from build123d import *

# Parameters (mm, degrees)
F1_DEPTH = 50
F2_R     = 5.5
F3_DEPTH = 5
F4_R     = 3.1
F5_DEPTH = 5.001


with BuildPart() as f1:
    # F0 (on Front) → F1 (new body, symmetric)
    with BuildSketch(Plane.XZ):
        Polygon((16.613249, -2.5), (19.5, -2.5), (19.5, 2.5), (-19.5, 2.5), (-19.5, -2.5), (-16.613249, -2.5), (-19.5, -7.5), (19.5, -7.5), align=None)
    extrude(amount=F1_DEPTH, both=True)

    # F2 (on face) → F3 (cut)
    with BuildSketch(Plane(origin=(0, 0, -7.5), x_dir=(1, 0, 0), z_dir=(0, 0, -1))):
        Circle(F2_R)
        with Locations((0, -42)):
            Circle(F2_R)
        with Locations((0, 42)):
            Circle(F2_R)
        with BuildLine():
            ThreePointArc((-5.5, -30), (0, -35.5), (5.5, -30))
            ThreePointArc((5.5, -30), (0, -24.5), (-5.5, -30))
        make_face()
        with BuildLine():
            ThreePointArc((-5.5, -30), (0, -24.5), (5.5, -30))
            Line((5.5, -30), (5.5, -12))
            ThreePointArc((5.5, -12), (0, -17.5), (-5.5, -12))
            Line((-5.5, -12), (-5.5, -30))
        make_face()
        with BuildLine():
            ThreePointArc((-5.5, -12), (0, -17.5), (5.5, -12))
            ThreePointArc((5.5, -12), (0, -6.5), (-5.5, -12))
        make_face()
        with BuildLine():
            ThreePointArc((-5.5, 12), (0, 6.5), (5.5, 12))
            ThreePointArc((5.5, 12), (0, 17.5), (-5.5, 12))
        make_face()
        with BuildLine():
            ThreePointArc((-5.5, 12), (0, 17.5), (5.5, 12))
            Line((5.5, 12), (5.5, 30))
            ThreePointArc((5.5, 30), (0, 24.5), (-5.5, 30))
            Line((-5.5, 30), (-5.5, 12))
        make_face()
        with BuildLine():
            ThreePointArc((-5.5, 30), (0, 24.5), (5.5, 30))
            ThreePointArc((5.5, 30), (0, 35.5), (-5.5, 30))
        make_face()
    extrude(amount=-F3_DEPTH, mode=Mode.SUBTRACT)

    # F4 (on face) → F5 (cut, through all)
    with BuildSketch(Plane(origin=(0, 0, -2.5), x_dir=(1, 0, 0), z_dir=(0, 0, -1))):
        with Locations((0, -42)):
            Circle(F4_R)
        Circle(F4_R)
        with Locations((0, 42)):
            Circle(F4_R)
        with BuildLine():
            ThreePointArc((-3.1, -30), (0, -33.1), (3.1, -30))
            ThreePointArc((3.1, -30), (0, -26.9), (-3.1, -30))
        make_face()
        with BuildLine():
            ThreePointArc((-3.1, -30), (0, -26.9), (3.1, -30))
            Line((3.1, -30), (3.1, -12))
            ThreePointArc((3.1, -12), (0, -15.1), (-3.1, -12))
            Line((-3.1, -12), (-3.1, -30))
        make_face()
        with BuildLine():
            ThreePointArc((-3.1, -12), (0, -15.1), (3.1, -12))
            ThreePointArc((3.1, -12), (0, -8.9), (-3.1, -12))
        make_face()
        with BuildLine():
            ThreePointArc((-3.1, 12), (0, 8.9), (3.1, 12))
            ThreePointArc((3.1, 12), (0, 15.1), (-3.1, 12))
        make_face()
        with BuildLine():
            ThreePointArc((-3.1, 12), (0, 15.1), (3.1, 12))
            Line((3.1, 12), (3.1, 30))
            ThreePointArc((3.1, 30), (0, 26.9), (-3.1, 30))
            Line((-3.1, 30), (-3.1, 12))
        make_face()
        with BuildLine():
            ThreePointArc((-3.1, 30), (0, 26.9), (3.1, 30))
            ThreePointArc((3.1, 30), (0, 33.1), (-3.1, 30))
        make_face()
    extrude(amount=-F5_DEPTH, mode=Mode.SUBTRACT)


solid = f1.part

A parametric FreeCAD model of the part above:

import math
import FreeCAD as App
import Part
import Sketcher
Q = App.Units.Quantity

doc = App.newDocument("Part")
params = doc.addObject("Spreadsheet::Sheet", "Params")
for row, (alias, value) in enumerate([
    ("sketch1_width", "39 mm"),
    ("sketch1_height", "5 mm"),
    ("pad1_length", "100 mm"),
    ("sketch2_diameter", "11 mm"),
    ("sketch2_height", "18 mm"),
    ("pocket1_length", "5 mm"),
    ("sketch3_diameter", "6.2 mm"),
    ("sketch3_height", "18 mm"),
], start=1):
    params.set(f"A{row}", alias)
    params.set(f"B{row}", "=" + value)
    params.setAlias(f"B{row}", alias)

body = doc.addObject("PartDesign::Body", "Body")

# Sketch on XZ plane
sketch1 = body.newObject("Sketcher::SketchObject", "Sketch")
sketch1.AttachmentSupport = (doc.getObject("XZ_Plane"), [""])
sketch1.MapMode = "FlatFace"
sketch1.addGeometry(Part.LineSegment(App.Vector(16.613249, -2.5, 0), App.Vector(19.5, -2.5, 0)), False)
sketch1.addGeometry(Part.LineSegment(App.Vector(19.5, -2.5, 0), App.Vector(19.5, 2.5, 0)), False)
sketch1.addGeometry(Part.LineSegment(App.Vector(19.5, 2.5, 0), App.Vector(-19.5, 2.5, 0)), False)
sketch1.addGeometry(Part.LineSegment(App.Vector(-19.5, 2.5, 0), App.Vector(-19.5, -2.5, 0)), False)
sketch1.addGeometry(Part.LineSegment(App.Vector(-19.5, -2.5, 0), App.Vector(-16.613249, -2.5, 0)), False)
sketch1.addGeometry(Part.LineSegment(App.Vector(-16.613249, -2.5, 0), App.Vector(-19.5, -7.5, 0)), False)
sketch1.addGeometry(Part.LineSegment(App.Vector(-19.5, -7.5, 0), App.Vector(19.5, -7.5, 0)), False)
sketch1.addGeometry(Part.LineSegment(App.Vector(19.5, -7.5, 0), App.Vector(16.613249, -2.5, 0)), False)
sketch1.addConstraint(Sketcher.Constraint("Coincident", 0, 2, 1, 1))
sketch1.addConstraint(Sketcher.Constraint("Coincident", 1, 2, 2, 1))
sketch1.addConstraint(Sketcher.Constraint("Coincident", 2, 2, 3, 1))
sketch1.addConstraint(Sketcher.Constraint("Coincident", 3, 2, 4, 1))
sketch1.addConstraint(Sketcher.Constraint("Coincident", 4, 2, 5, 1))
sketch1.addConstraint(Sketcher.Constraint("Coincident", 5, 2, 6, 1))
sketch1.addConstraint(Sketcher.Constraint("Coincident", 6, 2, 7, 1))
sketch1.addConstraint(Sketcher.Constraint("Coincident", 7, 2, 0, 1))
sketch1.addConstraint(Sketcher.Constraint("Horizontal", 0))
sketch1.addConstraint(Sketcher.Constraint("Vertical", 1))
sketch1.addConstraint(Sketcher.Constraint("Horizontal", 2))
sketch1.addConstraint(Sketcher.Constraint("Vertical", 3))
sketch1.addConstraint(Sketcher.Constraint("Horizontal", 4))
sketch1.addConstraint(Sketcher.Constraint("Horizontal", 6))
sketch1.addConstraint(Sketcher.Constraint("Symmetric", 0, 2, 2, 2, -1, 1))
sketch1.addConstraint(Sketcher.Constraint("Symmetric", 4, 2, 7, 2, -2))
sketch1.addConstraint(Sketcher.Constraint("Vertical", 3, 2, 5, 2))
sketch1.addConstraint(Sketcher.Constraint("Vertical", 1, 2, 6, 2))
sketch1.addConstraint(Sketcher.Constraint("DistanceX", 2, 2, 2, 1, 39.0))
sketch1.addConstraint(Sketcher.Constraint("DistanceY", 1, 1, 1, 2, 5.0))
sketch1.addConstraint(Sketcher.Constraint("Angle", 5, Q("-119.999997 deg")))
sketch1.addConstraint(Sketcher.Constraint("DistanceY", 5, 2, 3, 2, 5.0))
sketch1.setExpression("Constraints[18]", "Params.sketch1_width")
sketch1.setExpression("Constraints[19]", "Params.sketch1_height")
pad1 = body.newObject("PartDesign::Pad", "Pad")
pad1.Profile = sketch1
pad1.setExpression("Length", "Params.pad1_length")
pad1.Midplane = True

# Sketch on XY plane
sketch2 = body.newObject("Sketcher::SketchObject", "Sketch001")
sketch2.AttachmentSupport = (doc.getObject("XY_Plane"), [""])
sketch2.MapMode = "FlatFace"
sketch2.AttachmentOffset = App.Placement(App.Vector(0, 0, -7.5), App.Rotation())
sketch2.addGeometry(Part.Circle(App.Vector(0, 0, 0), App.Vector(0, 0, 1), 5.5), False)
sketch2.addGeometry(Part.Circle(App.Vector(0, 42, 0), App.Vector(0, 0, 1), 5.5), False)
sketch2.addGeometry(Part.Circle(App.Vector(0, -42, 0), App.Vector(0, 0, 1), 5.5), False)
sketch2.addGeometry(Part.ArcOfCircle(Part.Circle(App.Vector(0, 30, 0), App.Vector(0, 0, 1), 5.5), math.radians(0), math.radians(180)), False)
sketch2.addGeometry(Part.LineSegment(App.Vector(5.5, 30, 0), App.Vector(5.5, 12, 0)), False)
sketch2.addGeometry(Part.ArcOfCircle(Part.Circle(App.Vector(0, 12, 0), App.Vector(0, 0, 1), 5.5), math.radians(180), math.radians(360)), False)
sketch2.addGeometry(Part.LineSegment(App.Vector(-5.5, 12, 0), App.Vector(-5.5, 30, 0)), False)
sketch2.addGeometry(Part.ArcOfCircle(Part.Circle(App.Vector(0, -12, 0), App.Vector(0, 0, 1), 5.5), math.radians(0), math.radians(180)), False)
sketch2.addGeometry(Part.LineSegment(App.Vector(5.5, -12, 0), App.Vector(5.5, -30, 0)), False)
sketch2.addGeometry(Part.ArcOfCircle(Part.Circle(App.Vector(0, -30, 0), App.Vector(0, 0, 1), 5.5), math.radians(180), math.radians(360)), False)
sketch2.addGeometry(Part.LineSegment(App.Vector(-5.5, -30, 0), App.Vector(-5.5, -12, 0)), False)
sketch2.addConstraint(Sketcher.Constraint("Tangent", 3, 1, 4, 1))
sketch2.addConstraint(Sketcher.Constraint("Tangent", 4, 2, 5, 2))
sketch2.addConstraint(Sketcher.Constraint("Tangent", 5, 1, 6, 1))
sketch2.addConstraint(Sketcher.Constraint("Tangent", 6, 2, 3, 2))
sketch2.addConstraint(Sketcher.Constraint("Tangent", 7, 1, 8, 1))
sketch2.addConstraint(Sketcher.Constraint("Tangent", 8, 2, 9, 2))
sketch2.addConstraint(Sketcher.Constraint("Tangent", 9, 1, 10, 1))
sketch2.addConstraint(Sketcher.Constraint("Tangent", 10, 2, 7, 2))
sketch2.addConstraint(Sketcher.Constraint("Vertical", 4))
sketch2.addConstraint(Sketcher.Constraint("Vertical", 6))
sketch2.addConstraint(Sketcher.Constraint("Vertical", 8))
sketch2.addConstraint(Sketcher.Constraint("Vertical", 10))
sketch2.addConstraint(Sketcher.Constraint("Coincident", 0, 3, -1, 1))
sketch2.addConstraint(Sketcher.Constraint("Equal", 0, 1))
sketch2.addConstraint(Sketcher.Constraint("Equal", 1, 2))
sketch2.addConstraint(Sketcher.Constraint("Equal", 2, 3))
sketch2.addConstraint(Sketcher.Constraint("Equal", 5, 7))
sketch2.addConstraint(Sketcher.Constraint("Symmetric", 1, 3, 2, 3, -1, 1))
sketch2.addConstraint(Sketcher.Constraint("Symmetric", 5, 3, 7, 3, -1, 1))
sketch2.addConstraint(Sketcher.Constraint("Symmetric", 3, 3, 9, 3, -1))
sketch2.addConstraint(Sketcher.Constraint("PointOnObject", 1, 3, -2))
sketch2.addConstraint(Sketcher.Constraint("Diameter", 0, 11.0))
sketch2.addConstraint(Sketcher.Constraint("DistanceY", 4, 2, 4, 1, 18.0))
sketch2.addConstraint(Sketcher.Constraint("DistanceY", -1, 1, 1, 3, 42.0))
sketch2.addConstraint(Sketcher.Constraint("DistanceY", -1, 1, 3, 3, 30.0))
sketch2.setExpression("Constraints[21]", "Params.sketch2_diameter")
sketch2.setExpression("Constraints[22]", "Params.sketch2_height")
pocket1 = body.newObject("PartDesign::Pocket", "Pocket")
pocket1.Profile = sketch2
pocket1.setExpression("Length", "Params.pocket1_length")
pocket1.Reversed = True

# Sketch on XY plane
sketch3 = body.newObject("Sketcher::SketchObject", "Sketch002")
sketch3.AttachmentSupport = (doc.getObject("XY_Plane"), [""])
sketch3.MapMode = "FlatFace"
sketch3.AttachmentOffset = App.Placement(App.Vector(0, 0, -2.5), App.Rotation())
sketch3.addGeometry(Part.Circle(App.Vector(0, 42, 0), App.Vector(0, 0, 1), 3.1), False)
sketch3.addGeometry(Part.Circle(App.Vector(0, 0, 0), App.Vector(0, 0, 1), 3.1), False)
sketch3.addGeometry(Part.Circle(App.Vector(0, -42, 0), App.Vector(0, 0, 1), 3.1), False)
sketch3.addGeometry(Part.ArcOfCircle(Part.Circle(App.Vector(0, 30, 0), App.Vector(0, 0, 1), 3.1), math.radians(0), math.radians(180)), False)
sketch3.addGeometry(Part.LineSegment(App.Vector(3.1, 30, 0), App.Vector(3.1, 12, 0)), False)
sketch3.addGeometry(Part.ArcOfCircle(Part.Circle(App.Vector(0, 12, 0), App.Vector(0, 0, 1), 3.1), math.radians(180), math.radians(360)), False)
sketch3.addGeometry(Part.LineSegment(App.Vector(-3.1, 12, 0), App.Vector(-3.1, 30, 0)), False)
sketch3.addGeometry(Part.ArcOfCircle(Part.Circle(App.Vector(0, -12, 0), App.Vector(0, 0, 1), 3.1), math.radians(0), math.radians(180)), False)
sketch3.addGeometry(Part.LineSegment(App.Vector(3.1, -12, 0), App.Vector(3.1, -30, 0)), False)
sketch3.addGeometry(Part.ArcOfCircle(Part.Circle(App.Vector(0, -30, 0), App.Vector(0, 0, 1), 3.1), math.radians(180), math.radians(360)), False)
sketch3.addGeometry(Part.LineSegment(App.Vector(-3.1, -30, 0), App.Vector(-3.1, -12, 0)), False)
sketch3.addConstraint(Sketcher.Constraint("Tangent", 3, 1, 4, 1))
sketch3.addConstraint(Sketcher.Constraint("Tangent", 4, 2, 5, 2))
sketch3.addConstraint(Sketcher.Constraint("Tangent", 5, 1, 6, 1))
sketch3.addConstraint(Sketcher.Constraint("Tangent", 6, 2, 3, 2))
sketch3.addConstraint(Sketcher.Constraint("Tangent", 7, 1, 8, 1))
sketch3.addConstraint(Sketcher.Constraint("Tangent", 8, 2, 9, 2))
sketch3.addConstraint(Sketcher.Constraint("Tangent", 9, 1, 10, 1))
sketch3.addConstraint(Sketcher.Constraint("Tangent", 10, 2, 7, 2))
sketch3.addConstraint(Sketcher.Constraint("Vertical", 4))
sketch3.addConstraint(Sketcher.Constraint("Vertical", 6))
sketch3.addConstraint(Sketcher.Constraint("Vertical", 8))
sketch3.addConstraint(Sketcher.Constraint("Vertical", 10))
sketch3.addConstraint(Sketcher.Constraint("Coincident", 1, 3, -1, 1))
sketch3.addConstraint(Sketcher.Constraint("Equal", 0, 1))
sketch3.addConstraint(Sketcher.Constraint("Equal", 1, 2))
sketch3.addConstraint(Sketcher.Constraint("Equal", 2, 3))
sketch3.addConstraint(Sketcher.Constraint("Equal", 5, 7))
sketch3.addConstraint(Sketcher.Constraint("Symmetric", 0, 3, 2, 3, -1, 1))
sketch3.addConstraint(Sketcher.Constraint("Symmetric", 5, 3, 7, 3, -1, 1))
sketch3.addConstraint(Sketcher.Constraint("Symmetric", 3, 3, 9, 3, -1))
sketch3.addConstraint(Sketcher.Constraint("PointOnObject", 0, 3, -2))
sketch3.addConstraint(Sketcher.Constraint("Diameter", 0, 6.2))
sketch3.addConstraint(Sketcher.Constraint("DistanceY", 4, 2, 4, 1, 18.0))
sketch3.addConstraint(Sketcher.Constraint("DistanceY", -1, 1, 0, 3, 42.0))
sketch3.addConstraint(Sketcher.Constraint("DistanceY", -1, 1, 3, 3, 30.0))
sketch3.setExpression("Constraints[21]", "Params.sketch3_diameter")
sketch3.setExpression("Constraints[22]", "Params.sketch3_height")
pocket2 = body.newObject("PartDesign::Pocket", "Pocket001")
pocket2.Profile = sketch3
pocket2.Type = "ThroughAll"
pocket2.Reversed = True

doc.recompute()
